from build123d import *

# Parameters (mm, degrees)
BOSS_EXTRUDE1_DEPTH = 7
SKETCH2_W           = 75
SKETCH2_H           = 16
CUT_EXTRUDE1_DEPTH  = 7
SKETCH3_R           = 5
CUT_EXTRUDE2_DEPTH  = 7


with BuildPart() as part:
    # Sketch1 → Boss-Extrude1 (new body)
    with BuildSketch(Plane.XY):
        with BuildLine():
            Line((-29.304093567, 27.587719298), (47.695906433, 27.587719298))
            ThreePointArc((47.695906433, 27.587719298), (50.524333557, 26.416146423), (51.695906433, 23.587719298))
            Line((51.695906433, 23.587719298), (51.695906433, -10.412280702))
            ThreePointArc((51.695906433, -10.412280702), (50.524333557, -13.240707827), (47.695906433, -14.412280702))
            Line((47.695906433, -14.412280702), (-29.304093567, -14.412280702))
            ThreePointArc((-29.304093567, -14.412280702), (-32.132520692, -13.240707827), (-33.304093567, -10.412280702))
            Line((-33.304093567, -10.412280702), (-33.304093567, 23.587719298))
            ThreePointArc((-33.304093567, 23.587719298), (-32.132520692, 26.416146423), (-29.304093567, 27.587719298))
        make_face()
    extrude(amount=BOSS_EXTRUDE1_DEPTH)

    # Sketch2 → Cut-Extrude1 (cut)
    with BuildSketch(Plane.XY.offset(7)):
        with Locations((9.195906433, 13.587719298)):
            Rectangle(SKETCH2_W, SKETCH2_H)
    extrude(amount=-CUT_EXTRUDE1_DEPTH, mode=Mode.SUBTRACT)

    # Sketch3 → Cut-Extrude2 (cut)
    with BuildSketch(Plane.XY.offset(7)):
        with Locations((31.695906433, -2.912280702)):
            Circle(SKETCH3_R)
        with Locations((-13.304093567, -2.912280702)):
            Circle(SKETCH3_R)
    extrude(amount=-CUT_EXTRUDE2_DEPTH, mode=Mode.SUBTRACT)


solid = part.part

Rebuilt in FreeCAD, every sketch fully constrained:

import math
import FreeCAD as App
import Part
import Sketcher

V = App.Vector


def add_polygon(sketch, points):
    """Adds a closed chain of lines whose ends are joined by coincident constraints."""
    first, n = sketch.GeometryCount, len(points)
    for a, b in zip(points, points[1:] + points[:1]):
        sketch.addGeometry(Part.LineSegment(App.Vector(*a, 0), App.Vector(*b, 0)), False)
    for i in range(n):
        sketch.addConstraint(Sketcher.Constraint("Coincident", first + i, 2, first + (i + 1) % n, 1))

doc = App.newDocument("Part")
body = doc.addObject("PartDesign::Body", "Body")

sketch1 = doc.addObject("Sketcher::SketchObject", "Sketch")
body.addObject(sketch1)
sketch1.AttachmentSupport = (doc.XY_Plane, [""])
sketch1.MapMode = "FlatFace"
sketch1.addGeometry([
    Part.LineSegment(V(47.695906, 27.587719, 0), V(-29.304094, 27.587719, 0)),
    Part.ArcOfCircle(Part.Circle(V(-29.304094, 23.587719, 0), V(0, 0, 1), 4), math.radians(90), math.radians(180)),
    Part.LineSegment(V(-33.304094, 23.587719, 0), V(-33.304094, -10.412281, 0)),
    Part.ArcOfCircle(Part.Circle(V(-29.304094, -10.412281, 0), V(0, 0, 1), 4), math.radians(180), math.radians(270)),
    Part.LineSegment(V(-29.304094, -14.412281, 0), V(47.695906, -14.412281, 0)),
    Part.ArcOfCircle(Part.Circle(V(47.695906, -10.412281, 0), V(0, 0, 1), 4), math.radians(-90), math.radians(0)),
    Part.LineSegment(V(51.695906, -10.412281, 0), V(51.695906, 23.587719, 0)),
    Part.ArcOfCircle(Part.Circle(V(47.695906, 23.587719, 0), V(0, 0, 1), 4), math.radians(0), math.radians(90)),
], False)
sketch1.addConstraint([
    Sketcher.Constraint("Tangent", 0, 2, 1, 1),
    Sketcher.Constraint("Tangent", 1, 2, 2, 1),
    Sketcher.Constraint("Tangent", 2, 2, 3, 1),
    Sketcher.Constraint("Tangent", 3, 2, 4, 1),
    Sketcher.Constraint("Tangent", 4, 2, 5, 1),
    Sketcher.Constraint("Tangent", 5, 2, 6, 1),
    Sketcher.Constraint("Tangent", 6, 2, 7, 1),
    Sketcher.Constraint("Tangent", 7, 2, 0, 1),
    Sketcher.Constraint("Horizontal", 0),
    Sketcher.Constraint("Vertical", 2),
    Sketcher.Constraint("Horizontal", 4),
    Sketcher.Constraint("Vertical", 6),
    Sketcher.Constraint("Equal", 1, 3),
    Sketcher.Constraint("Equal", 3, 5),
    Sketcher.Constraint("Equal", 5, 7),
    Sketcher.Constraint("Radius", 1, 4.0),
    Sketcher.Constraint("DistanceX", 0, 2, 0, 1, 77.0),
    Sketcher.Constraint("DistanceY", 2, 2, 2, 1, 34.0),
    Sketcher.Constraint("DistanceY", -1, 1, 1, 3, 23.587719),
    Sketcher.Constraint("DistanceX", 1, 3, -1, 1, 29.304094),
])
pad1 = doc.addObject("PartDesign::Pad", "Pad")
body.addObject(pad1)
pad1.Profile = sketch1
pad1.Length = 7

sketch2 = doc.addObject("Sketcher::SketchObject", "Sketch001")
body.addObject(sketch2)
sketch2.AttachmentSupport = (doc.XY_Plane, [""])
sketch2.MapMode = "FlatFace"
sketch2.AttachmentOffset = App.Placement(V(0, 0, 7), App.Rotation())
add_polygon(sketch2, [(-28.304094, 21.587719), (-28.304094, 5.587719), (46.695906, 5.587719), (46.695906, 21.587719)])
sketch2.addConstraint([
    Sketcher.Constraint("Vertical", 0),
    Sketcher.Constraint("Horizontal", 1),
    Sketcher.Constraint("Vertical", 2),
    Sketcher.Constraint("Horizontal", 3),
    Sketcher.Constraint("DistanceX", 1, 1, 1, 2, 75.0),
    Sketcher.Constraint("DistanceY", 0, 2, 0, 1, 16.0),
    Sketcher.Constraint("DistanceY", -1, 1, 0, 2, 5.587719),
    Sketcher.Constraint("DistanceX", 0, 2, -1, 1, 28.304094),
])
pocket1 = doc.addObject("PartDesign::Pocket", "Pocket")
body.addObject(pocket1)
pocket1.Profile = sketch2
pocket1.Length = 7

sketch3 = doc.addObject("Sketcher::SketchObject", "Sketch002")
body.addObject(sketch3)
sketch3.AttachmentSupport = (doc.XY_Plane, [""])
sketch3.MapMode = "FlatFace"
sketch3.AttachmentOffset = App.Placement(V(0, 0, 7), App.Rotation())
sketch3.addGeometry([
    Part.Circle(V(31.695906, -2.912281, 0), V(0, 0, 1), 5),
    Part.Circle(V(-13.304094, -2.912281, 0), V(0, 0, 1), 5),
], False)
sketch3.addConstraint([
    Sketcher.Constraint("Equal", 0, 1),
    Sketcher.Constraint("Horizontal", 0, 3, 1, 3),
    Sketcher.Constraint("Diameter", 0, 10.0),
    Sketcher.Constraint("DistanceX", 1, 3, 0, 3, 45.0),
    Sketcher.Constraint("DistanceY", 0, 3, -1, 1, 2.912281),
    Sketcher.Constraint("DistanceX", -1, 1, 0, 3, 31.695906),
])
pocket2 = doc.addObject("PartDesign::Pocket", "Pocket001")
body.addObject(pocket2)
pocket2.Profile = sketch3
pocket2.Length = 7

doc.recompute()
